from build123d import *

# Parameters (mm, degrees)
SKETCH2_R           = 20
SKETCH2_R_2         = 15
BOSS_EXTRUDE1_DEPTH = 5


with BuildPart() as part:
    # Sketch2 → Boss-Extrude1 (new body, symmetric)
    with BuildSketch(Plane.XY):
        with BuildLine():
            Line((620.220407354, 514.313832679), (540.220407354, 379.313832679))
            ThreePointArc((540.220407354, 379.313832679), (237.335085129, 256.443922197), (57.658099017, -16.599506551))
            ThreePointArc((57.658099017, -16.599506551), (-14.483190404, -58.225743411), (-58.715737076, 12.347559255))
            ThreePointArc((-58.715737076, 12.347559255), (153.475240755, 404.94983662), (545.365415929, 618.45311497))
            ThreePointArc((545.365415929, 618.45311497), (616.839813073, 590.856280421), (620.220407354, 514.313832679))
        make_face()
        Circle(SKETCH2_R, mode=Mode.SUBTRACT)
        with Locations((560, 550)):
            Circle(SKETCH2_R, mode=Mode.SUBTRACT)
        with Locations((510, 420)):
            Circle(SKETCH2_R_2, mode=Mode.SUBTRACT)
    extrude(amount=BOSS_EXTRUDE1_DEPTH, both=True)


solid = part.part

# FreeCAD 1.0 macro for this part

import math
import FreeCAD as App
import Part
import Sketcher

V = App.Vector
Q = App.Units.Quantity

doc = App.newDocument("Part")
params = doc.addObject("Spreadsheet::Sheet", "Params")
for row, (alias, value) in enumerate([
    ("sketch1_diameter", "40 mm"),
    ("sketch1_diameter2", "30 mm"),
    ("sketch1_radius", "70 mm"),
    ("sketch1_radius2", "785 mm"),
    ("sketch1_radius3", "60 mm"),
    ("pad1_length", "10 mm"),
], start=1):
    params.set(f"A{row}", alias)
    params.set(f"B{row}", "=" + value)
    params.setAlias(f"B{row}", alias)

body = doc.addObject("PartDesign::Body", "Body")

# Sketch on XY plane
sketch1 = body.newObject("Sketcher::SketchObject", "Sketch")
sketch1.AttachmentSupport = (doc.getObject("XY_Plane"), [""])
sketch1.MapMode = "FlatFace"
sketch1.addGeometry([
    Part.LineSegment(V(540, 379, 0), V(620, 514, 0)),  # 0
    Part.ArcOfCircle(Part.Circle(V(560, 550, 0), V(0, 0, 1), 70), math.radians(-31), math.radians(102)),  # 1
    Part.ArcOfCircle(Part.Circle(V(709, -149, 0), V(0, 0, 1), 785), math.radians(102), math.radians(168)),  # 2
    Part.ArcOfCircle(Part.Circle(V(0, 0, 0), V(0, 0, 1), 60), math.radians(168), math.radians(344)),  # 3
    Part.ArcOfCircle(Part.Circle(V(586, -169, 0), V(0, 0, 1), 550), math.radians(95), math.radians(164)),  # 4
    Part.Circle(V(0, 0, 0), V(0, 0, 1), 20),  # 5
    Part.Circle(V(510, 420, 0), V(0, 0, 1), 15),  # 6
    Part.Circle(V(560, 550, 0), V(0, 0, 1), 20),  # 7
], False)
sketch1.addConstraint([
    Sketcher.Constraint("Tangent", 0, 2, 1, 1),
    Sketcher.Constraint("Tangent", 1, 2, 2, 1),
    Sketcher.Constraint("Tangent", 2, 2, 3, 1),
    Sketcher.Constraint("Tangent", 3, 2, 4, 2),
    Sketcher.Constraint("Coincident", 4, 1, 0, 1),
    Sketcher.Constraint("Coincident", 3, 3, -1, 1),
    Sketcher.Constraint("Coincident", 5, 3, -1, 1),
    Sketcher.Constraint("Coincident", 7, 3, 1, 3),
    Sketcher.Constraint("Equal", 5, 7),
    Sketcher.Constraint("Diameter", 5, Q("40 mm")),
    Sketcher.Constraint("Diameter", 6, Q("30 mm")),
    Sketcher.Constraint("Radius", 1, Q("70 mm")),
    Sketcher.Constraint("Radius", 2, Q("785 mm")),
    Sketcher.Constraint("Radius", 3, Q("60 mm")),
    Sketcher.Constraint("Radius", 4, Q("550 mm")),
    Sketcher.Constraint("DistanceX", -1, 1, 1, 3, Q("560 mm")),
    Sketcher.Constraint("DistanceY", -1, 1, 1, 3, Q("550 mm")),
    Sketcher.Constraint("DistanceX", -1, 1, 6, 3, Q("510 mm")),
    Sketcher.Constraint("DistanceY", -1, 1, 6, 3, Q("420 mm")),
    Sketcher.Constraint("DistanceY", 4, 1, 0, 2, Q("135 mm")),
    Sketcher.Constraint("Distance", 0, Q("156.923548 mm")),
])
sketch1.setExpression("Constraints[9]", "Params.sketch1_diameter")
sketch1.setExpression("Constraints[10]", "Params.sketch1_diameter2")
sketch1.setExpression("Constraints[11]", "Params.sketch1_radius")
sketch1.setExpression("Constraints[12]", "Params.sketch1_radius2")
sketch1.setExpression("Constraints[13]", "Params.sketch1_radius3")
pad1 = body.newObject("PartDesign::Pad", "Pad")
pad1.Profile = sketch1
pad1.setExpression("Length", "Params.pad1_length")
pad1.Midplane = True

doc.recompute()
